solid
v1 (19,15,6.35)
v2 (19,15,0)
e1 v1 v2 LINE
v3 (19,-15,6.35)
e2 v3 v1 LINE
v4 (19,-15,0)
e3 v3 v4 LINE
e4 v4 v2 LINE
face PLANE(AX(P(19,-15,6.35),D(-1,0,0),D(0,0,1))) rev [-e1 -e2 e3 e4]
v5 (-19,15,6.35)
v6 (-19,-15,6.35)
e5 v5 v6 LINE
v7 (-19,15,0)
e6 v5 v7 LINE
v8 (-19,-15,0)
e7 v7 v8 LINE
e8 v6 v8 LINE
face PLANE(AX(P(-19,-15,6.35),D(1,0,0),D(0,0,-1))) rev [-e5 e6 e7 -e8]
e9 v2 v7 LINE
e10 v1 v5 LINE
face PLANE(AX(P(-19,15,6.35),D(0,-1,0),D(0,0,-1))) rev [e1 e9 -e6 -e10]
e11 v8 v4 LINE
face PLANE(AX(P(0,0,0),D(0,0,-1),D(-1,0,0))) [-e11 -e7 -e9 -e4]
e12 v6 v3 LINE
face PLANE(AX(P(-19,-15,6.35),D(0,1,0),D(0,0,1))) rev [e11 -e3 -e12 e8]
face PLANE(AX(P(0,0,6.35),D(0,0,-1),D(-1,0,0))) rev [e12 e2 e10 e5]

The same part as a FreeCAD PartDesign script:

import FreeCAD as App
import Part
import Sketcher
from FreeCAD import Vector
Q = App.Units.Quantity

doc = App.newDocument("Part")
body = doc.addObject("PartDesign::Body", "Body")

sketch1 = doc.addObject("Sketcher::SketchObject", "Sketch")
body.addObject(sketch1)
sketch1.AttachmentSupport = (doc.XY_Plane, [""])
sketch1.MapMode = "FlatFace"
sketch1.addGeometry([
    Part.LineSegment(Vector(-19, 15, 0), Vector(-19, -15, 0)),
    Part.LineSegment(Vector(-19, -15, 0), Vector(19, -15, 0)),
    Part.LineSegment(Vector(19, -15, 0), Vector(19, 15, 0)),
    Part.LineSegment(Vector(19, 15, 0), Vector(-19, 15, 0)),
], False)
sketch1.addConstraint([
    Sketcher.Constraint("Coincident", 0, 2, 1, 1),
    Sketcher.Constraint("Coincident", 1, 2, 2, 1),
    Sketcher.Constraint("Coincident", 2, 2, 3, 1),
    Sketcher.Constraint("Coincident", 3, 2, 0, 1),
    Sketcher.Constraint("Vertical", 0),
    Sketcher.Constraint("Horizontal", 1),
    Sketcher.Constraint("Vertical", 2),
    Sketcher.Constraint("Horizontal", 3),
    Sketcher.Constraint("Symmetric", 0, 2, 2, 2, -1, 1),
    Sketcher.Constraint("DistanceX", 1, 1, 1, 2, Q("38 mm")),
    Sketcher.Constraint("DistanceY", 0, 2, 0, 1, Q("30 mm")),
])
pad1 = doc.addObject("PartDesign::Pad", "Pad")
body.addObject(pad1)
pad1.Profile = sketch1
pad1.Length = 6.35

doc.recompute()
